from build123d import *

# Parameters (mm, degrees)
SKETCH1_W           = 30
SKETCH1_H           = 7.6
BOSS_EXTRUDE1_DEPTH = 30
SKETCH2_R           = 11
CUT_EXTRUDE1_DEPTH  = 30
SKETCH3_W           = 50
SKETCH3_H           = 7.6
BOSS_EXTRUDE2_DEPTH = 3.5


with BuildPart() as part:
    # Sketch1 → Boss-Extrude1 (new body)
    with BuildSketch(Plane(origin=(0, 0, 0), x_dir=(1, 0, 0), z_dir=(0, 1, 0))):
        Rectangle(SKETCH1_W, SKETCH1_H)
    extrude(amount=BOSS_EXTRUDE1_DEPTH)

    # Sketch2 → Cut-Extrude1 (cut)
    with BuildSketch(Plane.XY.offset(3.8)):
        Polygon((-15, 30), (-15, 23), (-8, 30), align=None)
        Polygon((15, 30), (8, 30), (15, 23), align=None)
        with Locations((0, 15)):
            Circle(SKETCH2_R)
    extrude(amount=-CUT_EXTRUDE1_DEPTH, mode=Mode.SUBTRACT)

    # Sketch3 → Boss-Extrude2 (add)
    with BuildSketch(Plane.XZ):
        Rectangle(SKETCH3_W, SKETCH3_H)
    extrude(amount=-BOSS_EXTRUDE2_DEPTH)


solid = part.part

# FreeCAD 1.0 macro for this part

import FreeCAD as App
import Part
import Sketcher

V = App.Vector


def add_polygon(sketch, points):
    """Adds a closed chain of lines whose ends are joined by coincident constraints."""
    first, n = sketch.GeometryCount, len(points)
    for a, b in zip(points, points[1:] + points[:1]):
        sketch.addGeometry(Part.LineSegment(App.Vector(*a, 0), App.Vector(*b, 0)), False)
    for i in range(n):
        sketch.addConstraint(Sketcher.Constraint("Coincident", first + i, 2, first + (i + 1) % n, 1))

doc = App.newDocument("Part")
params = doc.addObject("Spreadsheet::Sheet", "Params")
for row, (alias, value) in enumerate([
    ("sketch1_width", "30 mm"),
    ("sketch1_height", "7.6 mm"),
    ("pad1_length", "30 mm"),
    ("sketch2_diameter", "22 mm"),
    ("sketch2_width", "7 mm"),
    ("pocket1_length", "30 mm"),
    ("sketch3_width", "50 mm"),
    ("sketch3_height", "7.6 mm"),
    ("pad2_length", "3.5 mm"),
], start=1):
    params.set(f"A{row}", alias)
    params.set(f"B{row}", "=" + value)
    params.setAlias(f"B{row}", alias)

body = doc.addObject("PartDesign::Body", "Body")

sketch1 = doc.addObject("Sketcher::SketchObject", "Sketch")
body.addObject(sketch1)
sketch1.AttachmentSupport = (doc.XZ_Plane, [""])
sketch1.MapMode = "FlatFace"
add_polygon(sketch1, [(-15, -3.8), (-15, 3.8), (15, 3.8), (15, -3.8)])
sketch1.addConstraint([
    Sketcher.Constraint("Vertical", 0),
    Sketcher.Constraint("Horizontal", 1),
    Sketcher.Constraint("Vertical", 2),
    Sketcher.Constraint("Horizontal", 3),
    Sketcher.Constraint("Symmetric", 0, 2, 2, 2, -1, 1),
    Sketcher.Constraint("DistanceX", 1, 1, 1, 2, 30.0),
    Sketcher.Constraint("DistanceY", 0, 1, 0, 2, 7.6),
])
sketch1.setExpression("Constraints[9]", "Params.sketch1_width")
sketch1.setExpression("Constraints[10]", "Params.sketch1_height")
pad1 = doc.addObject("PartDesign::Pad", "Pad")
body.addObject(pad1)
pad1.Profile = sketch1
pad1.setExpression("Length", "Params.pad1_length")
pad1.Reversed = True

sketch2 = doc.addObject("Sketcher::SketchObject", "Sketch001")
body.addObject(sketch2)
sketch2.AttachmentSupport = (doc.XY_Plane, [""])
sketch2.MapMode = "FlatFace"
sketch2.AttachmentOffset = App.Placement(V(0, 0, 3.8), App.Rotation())
add_polygon(sketch2, [(-15, 30), (-15, 23), (-8, 30)])
add_polygon(sketch2, [(15, 30), (8, 30), (15, 23)])
sketch2.addGeometry(Part.Circle(V(0, 15, 0), V(0, 0, 1), 11), False)
sketch2.addConstraint([
    Sketcher.Constraint("Vertical", 0),
    Sketcher.Constraint("Horizontal", 2),
    Sketcher.Constraint("Horizontal", 3),
    Sketcher.Constraint("Vertical", 5),
    Sketcher.Constraint("Symmetric", 1, 2, 3, 2, -2),
    Sketcher.Constraint("Symmetric", 0, 2, 4, 2, -2),
    Sketcher.Constraint("PointOnObject", 6, 3, -2),
    Sketcher.Constraint("Perpendicular", 1, 4),
    Sketcher.Constraint("Diameter", 6, 22.0),
    Sketcher.Constraint("DistanceX", 2, 2, 2, 1, 7.0),
    Sketcher.Constraint("DistanceY", -1, 1, 6, 3, 15.0),
    Sketcher.Constraint("DistanceX", 0, 2, -1, 1, 15.0),
    Sketcher.Constraint("DistanceY", -1, 1, 0, 2, 23.0),
])
sketch2.setExpression("Constraints[14]", "Params.sketch2_diameter")
sketch2.setExpression("Constraints[15]", "Params.sketch2_width")
pocket1 = doc.addObject("PartDesign::Pocket", "Pocket")
body.addObject(pocket1)
pocket1.Profile = sketch2
pocket1.setExpression("Length", "Params.pocket1_length")

sketch3 = doc.addObject("Sketcher::SketchObject", "Sketch002")
body.addObject(sketch3)
sketch3.AttachmentSupport = (doc.XZ_Plane, [""])
sketch3.MapMode = "FlatFace"
add_polygon(sketch3, [(-25, 3.8), (-25, -3.8), (25, -3.8), (25, 3.8)])
sketch3.addConstraint([
    Sketcher.Constraint("Vertical", 0),
    Sketcher.Constraint("Horizontal", 1),
    Sketcher.Constraint("Vertical", 2),
    Sketcher.Constraint("Horizontal", 3),
    Sketcher.Constraint("Symmetric", 0, 2, 2, 2, -1, 1),
    Sketcher.Constraint("DistanceX", 1, 1, 1, 2, 50.0),
    Sketcher.Constraint("DistanceY", 0, 2, 0, 1, 7.6),
])
sketch3.setExpression("Constraints[9]", "Params.sketch3_width")
sketch3.setExpression("Constraints[10]", "Params.sketch3_height")
pad2 = doc.addObject("PartDesign::Pad", "Pad001")
body.addObject(pad2)
pad2.Profile = sketch3
pad2.setExpression("Length", "Params.pad2_length")
pad2.Reversed = True

doc.recompute()
